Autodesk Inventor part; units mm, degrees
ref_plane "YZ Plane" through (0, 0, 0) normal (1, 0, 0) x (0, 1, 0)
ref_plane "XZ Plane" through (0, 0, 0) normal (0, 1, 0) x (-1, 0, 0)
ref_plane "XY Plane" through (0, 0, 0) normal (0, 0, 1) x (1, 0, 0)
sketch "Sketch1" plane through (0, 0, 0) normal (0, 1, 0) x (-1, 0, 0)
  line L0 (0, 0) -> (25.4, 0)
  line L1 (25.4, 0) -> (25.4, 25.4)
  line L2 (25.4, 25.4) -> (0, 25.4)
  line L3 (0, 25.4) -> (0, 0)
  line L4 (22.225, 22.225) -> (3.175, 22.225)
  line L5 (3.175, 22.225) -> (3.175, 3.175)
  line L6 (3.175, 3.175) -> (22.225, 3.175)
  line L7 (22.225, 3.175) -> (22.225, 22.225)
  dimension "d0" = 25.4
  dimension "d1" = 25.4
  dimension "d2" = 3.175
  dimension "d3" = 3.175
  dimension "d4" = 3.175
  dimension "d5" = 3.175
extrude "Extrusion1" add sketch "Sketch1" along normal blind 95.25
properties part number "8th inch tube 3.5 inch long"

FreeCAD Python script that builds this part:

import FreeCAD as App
import Part
import Sketcher
Q = App.Units.Quantity


def add_polygon(sketch, points):
    """Adds a closed chain of lines whose ends are joined by coincident constraints."""
    first, n = sketch.GeometryCount, len(points)
    for a, b in zip(points, points[1:] + points[:1]):
        sketch.addGeometry(Part.LineSegment(App.Vector(*a, 0), App.Vector(*b, 0)), False)
    for i in range(n):
        sketch.addConstraint(Sketcher.Constraint("Coincident", first + i, 2, first + (i + 1) % n, 1))

doc = App.newDocument("Part")
params = doc.addObject("Spreadsheet::Sheet", "Params")
for row, (alias, value) in enumerate([
    ("sketch1_width", "1 in"),
    ("pad1_length", "3.75 in"),
], start=1):
    params.set(f"A{row}", alias)
    params.set(f"B{row}", "=" + value)
    params.setAlias(f"B{row}", alias)

body = doc.addObject("PartDesign::Body", "Body")

# Sketch on XZ plane
sketch1 = doc.addObject("Sketcher::SketchObject", "Sketch")
body.addObject(sketch1)
sketch1.AttachmentSupport = (doc.XZ_Plane, [""])
sketch1.MapMode = "FlatFace"
add_polygon(sketch1, [(0, 25), (0, 0), (-25, 0), (-25, 25)])  # lines 0-3
add_polygon(sketch1, [(-3, 22), (-22, 22), (-22, 3), (-3, 3)])  # lines 4-7
sketch1.addConstraint(Sketcher.Constraint("Vertical", 0))
sketch1.addConstraint(Sketcher.Constraint("Horizontal", 1))
sketch1.addConstraint(Sketcher.Constraint("Vertical", 2))
sketch1.addConstraint(Sketcher.Constraint("Horizontal", 3))
sketch1.addConstraint(Sketcher.Constraint("Horizontal", 4))
sketch1.addConstraint(Sketcher.Constraint("Vertical", 5))
sketch1.addConstraint(Sketcher.Constraint("Horizontal", 6))
sketch1.addConstraint(Sketcher.Constraint("Vertical", 7))
sketch1.addConstraint(Sketcher.Constraint("Coincident", 0, 2, -1, 1))
sketch1.addConstraint(Sketcher.Constraint("Equal", 3, 0))
sketch1.addConstraint(Sketcher.Constraint("Equal", 6, 5))
sketch1.addConstraint(Sketcher.Constraint("DistanceX", 1, 2, 1, 1, Q("1 in")))
sketch1.addConstraint(Sketcher.Constraint("DistanceY", -1, 1, 5, 2, Q("0.125 in")))
sketch1.addConstraint(Sketcher.Constraint("DistanceX", 6, 2, -1, 1, Q("0.125 in")))
sketch1.addConstraint(Sketcher.Constraint("DistanceX", 2, 2, 4, 2, Q("0.125 in")))
sketch1.setExpression("Constraints[19]", "Params.sketch1_width")
pad1 = doc.addObject("PartDesign::Pad", "Pad")
body.addObject(pad1)
pad1.Profile = sketch1
pad1.setExpression("Length", "Params.pad1_length")
pad1.Reversed = True

doc.recompute()
